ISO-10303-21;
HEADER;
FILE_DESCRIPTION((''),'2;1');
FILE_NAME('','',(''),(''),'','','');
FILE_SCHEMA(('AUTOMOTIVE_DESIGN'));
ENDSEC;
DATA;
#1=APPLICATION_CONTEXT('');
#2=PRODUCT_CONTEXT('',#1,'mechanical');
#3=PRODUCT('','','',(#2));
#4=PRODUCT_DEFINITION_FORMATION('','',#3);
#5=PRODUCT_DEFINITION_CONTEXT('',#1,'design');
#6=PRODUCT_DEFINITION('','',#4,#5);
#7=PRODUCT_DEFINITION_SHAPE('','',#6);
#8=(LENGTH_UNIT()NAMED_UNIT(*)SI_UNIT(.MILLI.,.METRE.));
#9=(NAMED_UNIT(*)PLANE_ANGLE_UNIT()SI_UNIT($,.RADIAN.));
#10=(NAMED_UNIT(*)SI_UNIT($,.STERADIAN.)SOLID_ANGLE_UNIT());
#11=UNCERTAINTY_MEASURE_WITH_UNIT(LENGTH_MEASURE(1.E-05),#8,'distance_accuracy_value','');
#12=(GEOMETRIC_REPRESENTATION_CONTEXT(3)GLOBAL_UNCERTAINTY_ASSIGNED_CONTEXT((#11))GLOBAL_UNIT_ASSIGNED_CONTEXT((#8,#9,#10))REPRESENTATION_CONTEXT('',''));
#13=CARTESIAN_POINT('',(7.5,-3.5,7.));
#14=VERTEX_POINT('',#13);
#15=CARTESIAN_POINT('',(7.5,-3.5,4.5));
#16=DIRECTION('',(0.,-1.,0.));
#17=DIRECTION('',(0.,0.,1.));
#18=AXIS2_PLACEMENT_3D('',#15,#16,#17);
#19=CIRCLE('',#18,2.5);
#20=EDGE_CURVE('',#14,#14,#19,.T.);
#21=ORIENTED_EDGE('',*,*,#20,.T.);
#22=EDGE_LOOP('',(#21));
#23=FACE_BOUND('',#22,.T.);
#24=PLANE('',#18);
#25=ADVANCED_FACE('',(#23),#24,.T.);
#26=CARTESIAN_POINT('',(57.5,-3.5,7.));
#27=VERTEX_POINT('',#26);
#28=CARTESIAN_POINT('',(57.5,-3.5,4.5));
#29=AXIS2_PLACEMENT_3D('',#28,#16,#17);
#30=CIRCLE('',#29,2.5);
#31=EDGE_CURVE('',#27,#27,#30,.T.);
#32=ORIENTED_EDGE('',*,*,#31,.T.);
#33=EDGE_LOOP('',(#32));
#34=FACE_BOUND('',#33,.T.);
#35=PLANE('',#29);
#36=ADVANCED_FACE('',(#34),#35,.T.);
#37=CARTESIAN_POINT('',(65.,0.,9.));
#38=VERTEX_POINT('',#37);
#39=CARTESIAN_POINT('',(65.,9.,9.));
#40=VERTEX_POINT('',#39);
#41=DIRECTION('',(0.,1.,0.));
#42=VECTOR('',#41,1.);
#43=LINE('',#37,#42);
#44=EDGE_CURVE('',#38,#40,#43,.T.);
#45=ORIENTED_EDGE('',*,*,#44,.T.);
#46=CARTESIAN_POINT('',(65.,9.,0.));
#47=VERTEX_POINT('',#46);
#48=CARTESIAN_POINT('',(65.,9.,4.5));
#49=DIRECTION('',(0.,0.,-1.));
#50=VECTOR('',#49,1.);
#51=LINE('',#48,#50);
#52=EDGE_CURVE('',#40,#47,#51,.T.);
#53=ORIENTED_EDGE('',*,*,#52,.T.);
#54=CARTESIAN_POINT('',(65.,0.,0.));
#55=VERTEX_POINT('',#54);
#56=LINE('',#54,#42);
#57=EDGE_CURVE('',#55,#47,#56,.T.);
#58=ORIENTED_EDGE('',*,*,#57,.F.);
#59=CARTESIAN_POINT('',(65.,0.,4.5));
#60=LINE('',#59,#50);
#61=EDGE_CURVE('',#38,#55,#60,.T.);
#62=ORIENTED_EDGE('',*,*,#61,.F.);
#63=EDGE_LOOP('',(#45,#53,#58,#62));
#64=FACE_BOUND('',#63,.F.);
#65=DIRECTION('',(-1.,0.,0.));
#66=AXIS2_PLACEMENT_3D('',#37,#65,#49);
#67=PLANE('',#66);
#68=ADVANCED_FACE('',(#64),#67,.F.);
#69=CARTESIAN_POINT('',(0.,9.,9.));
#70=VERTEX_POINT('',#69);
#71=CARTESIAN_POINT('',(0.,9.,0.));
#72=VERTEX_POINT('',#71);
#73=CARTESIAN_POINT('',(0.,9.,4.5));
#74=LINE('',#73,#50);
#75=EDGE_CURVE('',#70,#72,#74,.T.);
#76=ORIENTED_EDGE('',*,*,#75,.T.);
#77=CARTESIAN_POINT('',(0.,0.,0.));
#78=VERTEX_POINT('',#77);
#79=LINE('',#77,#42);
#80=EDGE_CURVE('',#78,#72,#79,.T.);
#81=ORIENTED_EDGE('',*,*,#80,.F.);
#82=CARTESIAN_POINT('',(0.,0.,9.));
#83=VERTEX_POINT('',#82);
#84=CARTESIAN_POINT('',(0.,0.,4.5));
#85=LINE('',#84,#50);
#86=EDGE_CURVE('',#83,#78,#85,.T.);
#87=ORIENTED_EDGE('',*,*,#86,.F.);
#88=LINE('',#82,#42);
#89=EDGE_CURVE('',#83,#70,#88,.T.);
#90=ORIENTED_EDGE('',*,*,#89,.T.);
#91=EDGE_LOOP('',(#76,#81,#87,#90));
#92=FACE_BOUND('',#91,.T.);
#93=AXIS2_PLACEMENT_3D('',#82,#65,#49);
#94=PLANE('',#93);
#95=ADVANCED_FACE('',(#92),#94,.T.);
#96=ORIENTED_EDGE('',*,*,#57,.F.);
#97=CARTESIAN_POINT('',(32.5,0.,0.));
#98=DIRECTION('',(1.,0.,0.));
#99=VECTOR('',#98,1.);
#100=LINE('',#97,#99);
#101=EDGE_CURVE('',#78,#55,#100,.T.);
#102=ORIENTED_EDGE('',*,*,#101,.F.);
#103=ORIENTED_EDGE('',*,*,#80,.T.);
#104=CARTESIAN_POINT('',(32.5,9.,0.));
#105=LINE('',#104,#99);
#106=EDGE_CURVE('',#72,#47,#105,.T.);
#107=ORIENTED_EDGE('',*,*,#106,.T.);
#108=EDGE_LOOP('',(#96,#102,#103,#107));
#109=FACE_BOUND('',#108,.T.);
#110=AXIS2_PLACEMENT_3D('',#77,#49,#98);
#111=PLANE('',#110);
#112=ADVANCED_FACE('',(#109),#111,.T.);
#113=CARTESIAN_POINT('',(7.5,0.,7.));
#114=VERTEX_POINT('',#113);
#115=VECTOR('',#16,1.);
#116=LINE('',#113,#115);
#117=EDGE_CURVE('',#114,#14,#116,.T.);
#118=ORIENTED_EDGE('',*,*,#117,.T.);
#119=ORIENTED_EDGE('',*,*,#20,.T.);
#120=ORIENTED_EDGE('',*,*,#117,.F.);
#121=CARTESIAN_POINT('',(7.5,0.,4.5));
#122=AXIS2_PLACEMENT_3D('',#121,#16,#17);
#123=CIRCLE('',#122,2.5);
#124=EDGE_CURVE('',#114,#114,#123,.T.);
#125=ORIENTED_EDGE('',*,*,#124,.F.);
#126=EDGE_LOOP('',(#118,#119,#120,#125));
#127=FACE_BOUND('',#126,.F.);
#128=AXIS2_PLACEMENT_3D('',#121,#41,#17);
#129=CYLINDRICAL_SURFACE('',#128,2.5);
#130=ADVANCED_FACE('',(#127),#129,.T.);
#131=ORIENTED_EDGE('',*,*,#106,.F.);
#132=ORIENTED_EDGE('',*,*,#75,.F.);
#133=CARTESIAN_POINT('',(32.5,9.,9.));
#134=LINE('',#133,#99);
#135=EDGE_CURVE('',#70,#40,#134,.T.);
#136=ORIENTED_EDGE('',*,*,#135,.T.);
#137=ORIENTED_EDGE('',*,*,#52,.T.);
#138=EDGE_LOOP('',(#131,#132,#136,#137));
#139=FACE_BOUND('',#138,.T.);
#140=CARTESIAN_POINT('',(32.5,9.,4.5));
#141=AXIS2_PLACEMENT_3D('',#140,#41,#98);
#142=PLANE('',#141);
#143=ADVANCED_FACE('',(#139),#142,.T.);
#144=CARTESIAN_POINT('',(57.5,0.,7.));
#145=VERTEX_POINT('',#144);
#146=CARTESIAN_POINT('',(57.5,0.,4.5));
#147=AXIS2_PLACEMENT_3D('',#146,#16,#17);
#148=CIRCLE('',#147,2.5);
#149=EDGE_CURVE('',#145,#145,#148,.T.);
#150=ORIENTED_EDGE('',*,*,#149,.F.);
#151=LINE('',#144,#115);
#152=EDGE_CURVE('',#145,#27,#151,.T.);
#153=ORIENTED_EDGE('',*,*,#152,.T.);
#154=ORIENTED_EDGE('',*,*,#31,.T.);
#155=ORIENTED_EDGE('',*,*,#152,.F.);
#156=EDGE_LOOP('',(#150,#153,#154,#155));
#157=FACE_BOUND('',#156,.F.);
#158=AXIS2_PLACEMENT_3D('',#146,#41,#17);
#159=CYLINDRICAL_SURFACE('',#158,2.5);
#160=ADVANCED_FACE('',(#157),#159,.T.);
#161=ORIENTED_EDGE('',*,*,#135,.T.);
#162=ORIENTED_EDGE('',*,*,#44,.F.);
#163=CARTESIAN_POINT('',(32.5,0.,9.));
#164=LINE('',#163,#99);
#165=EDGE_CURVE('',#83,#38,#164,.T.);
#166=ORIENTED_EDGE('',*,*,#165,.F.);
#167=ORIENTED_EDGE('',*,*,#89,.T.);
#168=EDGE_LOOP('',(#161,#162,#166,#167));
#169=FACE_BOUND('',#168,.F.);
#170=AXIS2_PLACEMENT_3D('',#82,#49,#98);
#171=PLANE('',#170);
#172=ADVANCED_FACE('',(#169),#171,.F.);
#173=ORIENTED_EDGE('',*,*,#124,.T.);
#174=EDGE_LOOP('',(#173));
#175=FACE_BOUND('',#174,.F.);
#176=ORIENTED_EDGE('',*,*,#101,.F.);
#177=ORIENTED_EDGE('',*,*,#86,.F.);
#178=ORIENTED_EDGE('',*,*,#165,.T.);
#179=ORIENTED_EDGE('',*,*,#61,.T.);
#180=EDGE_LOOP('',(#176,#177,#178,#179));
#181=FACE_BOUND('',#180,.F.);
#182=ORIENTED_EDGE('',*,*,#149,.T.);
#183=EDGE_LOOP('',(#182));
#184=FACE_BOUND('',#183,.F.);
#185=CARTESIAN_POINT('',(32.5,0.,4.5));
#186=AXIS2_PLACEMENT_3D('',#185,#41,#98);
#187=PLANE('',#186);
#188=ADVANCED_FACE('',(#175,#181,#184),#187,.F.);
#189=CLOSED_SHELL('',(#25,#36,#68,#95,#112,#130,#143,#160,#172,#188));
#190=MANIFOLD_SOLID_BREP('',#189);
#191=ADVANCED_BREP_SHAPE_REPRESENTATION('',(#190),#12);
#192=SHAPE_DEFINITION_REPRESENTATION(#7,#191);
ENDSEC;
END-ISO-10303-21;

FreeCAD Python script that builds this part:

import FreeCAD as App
import Part
import Sketcher
Q = App.Units.Quantity

doc = App.newDocument("Part")
body = doc.addObject("PartDesign::Body", "Body")

# Sketch on XZ plane
sketch1 = body.newObject("Sketcher::SketchObject", "Sketch")
sketch1.AttachmentSupport = (doc.getObject("XZ_Plane"), [""])
sketch1.MapMode = "FlatFace"
sketch1.addGeometry(Part.LineSegment(App.Vector(0, 0, 0), App.Vector(0, 9, 0)), False)
sketch1.addGeometry(Part.LineSegment(App.Vector(0, 9, 0), App.Vector(65, 9, 0)), False)
sketch1.addGeometry(Part.LineSegment(App.Vector(65, 9, 0), App.Vector(65, 0, 0)), False)
sketch1.addGeometry(Part.LineSegment(App.Vector(65, 0, 0), App.Vector(0, 0, 0)), False)
sketch1.addConstraint(Sketcher.Constraint("Coincident", 0, 2, 1, 1))
sketch1.addConstraint(Sketcher.Constraint("Coincident", 1, 2, 2, 1))
sketch1.addConstraint(Sketcher.Constraint("Coincident", 2, 2, 3, 1))
sketch1.addConstraint(Sketcher.Constraint("Coincident", 3, 2, 0, 1))
sketch1.addConstraint(Sketcher.Constraint("Vertical", 0))
sketch1.addConstraint(Sketcher.Constraint("Horizontal", 1))
sketch1.addConstraint(Sketcher.Constraint("Vertical", 2))
sketch1.addConstraint(Sketcher.Constraint("Horizontal", 3))
sketch1.addConstraint(Sketcher.Constraint("Coincident", 3, 2, -1, 1))
sketch1.addConstraint(Sketcher.Constraint("DistanceX", 1, 1, 1, 2, Q("65 mm")))
sketch1.addConstraint(Sketcher.Constraint("DistanceY", 0, 1, 0, 2, Q("9 mm")))
pad1 = body.newObject("PartDesign::Pad", "Pad")
pad1.Profile = sketch1
pad1.Length = 9
pad1.Reversed = True

# Sketch on XZ plane
sketch2 = body.newObject("Sketcher::SketchObject", "Sketch001")
sketch2.AttachmentSupport = (doc.getObject("XZ_Plane"), [""])
sketch2.MapMode = "FlatFace"
sketch2.addGeometry(Part.Circle(App.Vector(7.5, 4.5, 0), App.Vector(0, 0, 1), 2.5), False)
sketch2.addGeometry(Part.Circle(App.Vector(57.5, 4.5, 0), App.Vector(0, 0, 1), 2.5), False)
sketch2.addConstraint(Sketcher.Constraint("Equal", 0, 1))
sketch2.addConstraint(Sketcher.Constraint("Horizontal", 0, 3, 1, 3))
sketch2.addConstraint(Sketcher.Constraint("Diameter", 0, Q("5 mm")))
sketch2.addConstraint(Sketcher.Constraint("DistanceX", 0, 3, 1, 3, Q("50 mm")))
sketch2.addConstraint(Sketcher.Constraint("DistanceX", -1, 1, 0, 3, Q("7.5 mm")))
sketch2.addConstraint(Sketcher.Constraint("DistanceY", -1, 1, 0, 3, Q("4.5 mm")))
pad2 = body.newObject("PartDesign::Pad", "Pad001")
pad2.Profile = sketch2
pad2.Length = 3.5

doc.recompute()
